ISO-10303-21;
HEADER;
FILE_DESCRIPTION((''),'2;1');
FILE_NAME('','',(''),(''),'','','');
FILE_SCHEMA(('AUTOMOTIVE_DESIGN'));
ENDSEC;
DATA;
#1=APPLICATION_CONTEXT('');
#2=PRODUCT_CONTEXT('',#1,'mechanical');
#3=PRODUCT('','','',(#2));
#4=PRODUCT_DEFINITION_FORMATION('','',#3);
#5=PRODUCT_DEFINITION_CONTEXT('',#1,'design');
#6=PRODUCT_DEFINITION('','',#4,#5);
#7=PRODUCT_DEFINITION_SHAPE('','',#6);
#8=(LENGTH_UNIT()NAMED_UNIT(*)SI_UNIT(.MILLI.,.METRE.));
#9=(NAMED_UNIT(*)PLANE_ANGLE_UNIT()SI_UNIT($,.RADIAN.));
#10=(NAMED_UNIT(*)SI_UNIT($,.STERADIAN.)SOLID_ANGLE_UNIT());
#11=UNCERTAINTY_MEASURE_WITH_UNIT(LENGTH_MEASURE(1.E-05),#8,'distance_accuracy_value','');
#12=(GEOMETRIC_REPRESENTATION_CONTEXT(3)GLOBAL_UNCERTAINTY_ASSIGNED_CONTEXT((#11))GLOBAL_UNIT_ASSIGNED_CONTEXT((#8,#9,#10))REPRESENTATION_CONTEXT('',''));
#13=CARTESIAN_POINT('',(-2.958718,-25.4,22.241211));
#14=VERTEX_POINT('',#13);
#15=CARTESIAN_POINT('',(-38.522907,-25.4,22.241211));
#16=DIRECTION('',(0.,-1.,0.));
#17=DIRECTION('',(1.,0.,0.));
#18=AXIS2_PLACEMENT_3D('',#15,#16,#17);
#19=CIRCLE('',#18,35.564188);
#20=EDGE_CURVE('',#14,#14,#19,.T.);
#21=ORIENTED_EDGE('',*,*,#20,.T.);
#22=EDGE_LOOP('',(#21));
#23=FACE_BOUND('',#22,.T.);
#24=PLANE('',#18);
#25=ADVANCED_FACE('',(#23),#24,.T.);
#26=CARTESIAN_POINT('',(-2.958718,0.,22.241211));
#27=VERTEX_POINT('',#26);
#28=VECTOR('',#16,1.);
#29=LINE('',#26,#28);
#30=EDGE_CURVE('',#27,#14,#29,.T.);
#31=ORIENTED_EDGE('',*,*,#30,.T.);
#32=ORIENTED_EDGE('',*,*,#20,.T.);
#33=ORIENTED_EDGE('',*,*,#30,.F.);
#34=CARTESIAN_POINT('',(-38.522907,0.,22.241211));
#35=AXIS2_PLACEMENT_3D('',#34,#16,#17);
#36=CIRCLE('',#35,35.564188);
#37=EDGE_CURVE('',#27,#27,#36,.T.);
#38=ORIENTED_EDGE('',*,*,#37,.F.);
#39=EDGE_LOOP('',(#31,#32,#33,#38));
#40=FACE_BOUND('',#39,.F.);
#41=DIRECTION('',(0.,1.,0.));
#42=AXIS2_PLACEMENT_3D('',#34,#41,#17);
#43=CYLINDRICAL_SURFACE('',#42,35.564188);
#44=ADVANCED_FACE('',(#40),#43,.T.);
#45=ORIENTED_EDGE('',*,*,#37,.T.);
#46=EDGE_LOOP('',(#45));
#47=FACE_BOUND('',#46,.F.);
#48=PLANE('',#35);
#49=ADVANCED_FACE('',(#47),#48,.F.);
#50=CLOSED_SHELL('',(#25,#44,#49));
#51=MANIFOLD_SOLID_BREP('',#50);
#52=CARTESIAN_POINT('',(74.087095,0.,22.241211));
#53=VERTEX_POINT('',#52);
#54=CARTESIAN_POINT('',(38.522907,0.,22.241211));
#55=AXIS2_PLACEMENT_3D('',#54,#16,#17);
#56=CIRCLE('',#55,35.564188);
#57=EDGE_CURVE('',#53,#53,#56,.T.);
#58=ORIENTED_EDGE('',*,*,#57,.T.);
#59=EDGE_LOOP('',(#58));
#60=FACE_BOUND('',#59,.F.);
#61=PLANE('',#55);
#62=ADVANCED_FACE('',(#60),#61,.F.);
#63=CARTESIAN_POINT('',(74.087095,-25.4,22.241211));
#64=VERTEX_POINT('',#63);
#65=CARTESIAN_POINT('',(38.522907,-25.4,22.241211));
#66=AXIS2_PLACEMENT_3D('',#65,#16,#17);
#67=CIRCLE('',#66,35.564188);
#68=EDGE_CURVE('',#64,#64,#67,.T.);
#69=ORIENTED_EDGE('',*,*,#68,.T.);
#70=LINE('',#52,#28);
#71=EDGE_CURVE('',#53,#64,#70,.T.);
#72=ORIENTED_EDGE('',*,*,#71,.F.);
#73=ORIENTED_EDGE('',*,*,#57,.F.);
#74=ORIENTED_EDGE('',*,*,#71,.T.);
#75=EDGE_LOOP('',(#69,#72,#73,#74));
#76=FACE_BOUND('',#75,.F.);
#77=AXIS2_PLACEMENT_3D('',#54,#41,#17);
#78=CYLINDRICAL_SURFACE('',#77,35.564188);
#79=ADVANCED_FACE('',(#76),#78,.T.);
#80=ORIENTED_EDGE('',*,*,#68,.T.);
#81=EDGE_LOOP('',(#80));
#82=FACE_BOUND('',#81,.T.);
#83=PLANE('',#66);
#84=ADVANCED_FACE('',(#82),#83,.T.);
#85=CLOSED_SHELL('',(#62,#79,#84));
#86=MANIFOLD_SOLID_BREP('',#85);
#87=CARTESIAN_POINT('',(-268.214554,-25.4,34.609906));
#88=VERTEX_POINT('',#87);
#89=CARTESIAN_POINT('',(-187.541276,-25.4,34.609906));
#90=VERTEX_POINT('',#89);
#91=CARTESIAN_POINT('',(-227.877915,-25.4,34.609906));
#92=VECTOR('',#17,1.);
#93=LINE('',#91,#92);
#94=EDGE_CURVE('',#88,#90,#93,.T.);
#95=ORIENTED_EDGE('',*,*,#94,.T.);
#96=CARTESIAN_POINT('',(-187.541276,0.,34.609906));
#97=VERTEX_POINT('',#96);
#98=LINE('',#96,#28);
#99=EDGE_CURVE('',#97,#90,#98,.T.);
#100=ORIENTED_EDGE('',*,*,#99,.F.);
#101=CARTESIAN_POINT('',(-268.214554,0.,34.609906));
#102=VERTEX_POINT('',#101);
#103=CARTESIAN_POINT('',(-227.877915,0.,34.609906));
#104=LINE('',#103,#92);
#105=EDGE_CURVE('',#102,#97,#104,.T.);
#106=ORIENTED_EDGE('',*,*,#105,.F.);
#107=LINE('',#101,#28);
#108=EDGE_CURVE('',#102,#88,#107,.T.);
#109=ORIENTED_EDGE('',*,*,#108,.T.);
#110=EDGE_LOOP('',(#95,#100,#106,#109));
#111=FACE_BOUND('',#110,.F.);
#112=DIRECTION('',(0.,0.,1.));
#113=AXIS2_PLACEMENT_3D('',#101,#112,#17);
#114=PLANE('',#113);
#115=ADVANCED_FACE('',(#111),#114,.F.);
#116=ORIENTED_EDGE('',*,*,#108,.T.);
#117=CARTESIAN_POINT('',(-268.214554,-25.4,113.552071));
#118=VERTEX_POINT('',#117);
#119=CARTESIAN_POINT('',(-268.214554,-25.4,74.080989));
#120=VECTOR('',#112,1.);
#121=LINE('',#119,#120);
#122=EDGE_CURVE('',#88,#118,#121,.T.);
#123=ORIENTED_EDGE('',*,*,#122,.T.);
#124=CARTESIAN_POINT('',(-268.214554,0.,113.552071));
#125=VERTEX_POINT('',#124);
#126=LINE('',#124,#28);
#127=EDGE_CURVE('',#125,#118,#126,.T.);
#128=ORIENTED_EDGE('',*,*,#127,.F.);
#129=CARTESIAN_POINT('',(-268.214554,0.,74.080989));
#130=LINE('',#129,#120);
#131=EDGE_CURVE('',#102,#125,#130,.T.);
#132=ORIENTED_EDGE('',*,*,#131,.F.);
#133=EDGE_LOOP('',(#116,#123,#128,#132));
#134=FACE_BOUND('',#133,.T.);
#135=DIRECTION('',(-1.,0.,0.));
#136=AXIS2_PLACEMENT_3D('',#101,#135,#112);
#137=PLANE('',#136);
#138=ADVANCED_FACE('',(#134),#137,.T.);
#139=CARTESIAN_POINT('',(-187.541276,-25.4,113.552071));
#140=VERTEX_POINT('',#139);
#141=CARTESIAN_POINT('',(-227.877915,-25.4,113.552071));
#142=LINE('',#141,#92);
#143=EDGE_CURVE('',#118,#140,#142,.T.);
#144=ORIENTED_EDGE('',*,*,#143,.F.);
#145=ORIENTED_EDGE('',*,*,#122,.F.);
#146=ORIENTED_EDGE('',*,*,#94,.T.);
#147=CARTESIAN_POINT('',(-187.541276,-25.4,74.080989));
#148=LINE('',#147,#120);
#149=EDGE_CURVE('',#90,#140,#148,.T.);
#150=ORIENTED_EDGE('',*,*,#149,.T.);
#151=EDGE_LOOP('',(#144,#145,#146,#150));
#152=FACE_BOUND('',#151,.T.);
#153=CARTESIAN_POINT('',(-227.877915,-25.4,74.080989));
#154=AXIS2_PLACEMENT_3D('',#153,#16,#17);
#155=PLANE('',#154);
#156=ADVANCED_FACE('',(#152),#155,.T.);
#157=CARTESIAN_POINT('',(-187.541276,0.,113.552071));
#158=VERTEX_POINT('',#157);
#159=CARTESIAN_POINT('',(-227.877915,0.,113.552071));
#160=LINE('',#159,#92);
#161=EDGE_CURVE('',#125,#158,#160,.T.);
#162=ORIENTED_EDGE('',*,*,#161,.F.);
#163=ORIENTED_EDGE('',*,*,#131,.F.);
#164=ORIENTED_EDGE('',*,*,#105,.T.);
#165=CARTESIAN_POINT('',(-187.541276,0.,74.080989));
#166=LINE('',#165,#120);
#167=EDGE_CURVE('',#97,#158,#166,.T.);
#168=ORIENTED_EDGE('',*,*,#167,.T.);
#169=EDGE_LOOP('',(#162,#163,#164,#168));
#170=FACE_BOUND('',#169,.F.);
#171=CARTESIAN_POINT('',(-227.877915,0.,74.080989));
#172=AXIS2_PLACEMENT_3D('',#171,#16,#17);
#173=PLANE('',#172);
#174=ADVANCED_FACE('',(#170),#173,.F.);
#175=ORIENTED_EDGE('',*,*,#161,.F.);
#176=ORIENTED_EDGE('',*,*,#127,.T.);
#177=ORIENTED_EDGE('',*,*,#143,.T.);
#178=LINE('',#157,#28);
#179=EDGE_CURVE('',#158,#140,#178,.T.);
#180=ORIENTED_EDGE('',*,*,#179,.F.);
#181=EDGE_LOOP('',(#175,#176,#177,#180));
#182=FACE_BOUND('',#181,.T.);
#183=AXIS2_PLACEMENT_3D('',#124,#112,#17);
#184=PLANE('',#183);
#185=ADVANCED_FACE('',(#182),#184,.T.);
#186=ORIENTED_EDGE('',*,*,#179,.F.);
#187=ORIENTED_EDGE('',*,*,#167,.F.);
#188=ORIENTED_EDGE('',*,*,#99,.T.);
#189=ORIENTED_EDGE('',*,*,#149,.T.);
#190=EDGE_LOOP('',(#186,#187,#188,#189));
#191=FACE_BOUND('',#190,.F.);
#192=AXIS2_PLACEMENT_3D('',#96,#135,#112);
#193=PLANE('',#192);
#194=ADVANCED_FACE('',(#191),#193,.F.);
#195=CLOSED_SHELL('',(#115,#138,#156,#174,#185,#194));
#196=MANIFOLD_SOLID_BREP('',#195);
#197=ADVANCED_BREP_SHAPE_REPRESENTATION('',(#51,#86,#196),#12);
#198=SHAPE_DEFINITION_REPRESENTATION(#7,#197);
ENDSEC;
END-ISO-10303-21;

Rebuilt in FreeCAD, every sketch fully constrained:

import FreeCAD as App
import Part
import Sketcher
from FreeCAD import Vector
Q = App.Units.Quantity


def add_polygon(sketch, points):
    """Adds a closed chain of lines whose ends are joined by coincident constraints."""
    first, n = sketch.GeometryCount, len(points)
    for a, b in zip(points, points[1:] + points[:1]):
        sketch.addGeometry(Part.LineSegment(App.Vector(*a, 0), App.Vector(*b, 0)), False)
    for i in range(n):
        sketch.addConstraint(Sketcher.Constraint("Coincident", first + i, 2, first + (i + 1) % n, 1))

doc = App.newDocument("Part")
body = doc.addObject("PartDesign::Body", "Body")

sketch1 = doc.addObject("Sketcher::SketchObject", "Sketch")
body.addObject(sketch1)
sketch1.AttachmentSupport = (doc.XZ_Plane, [""])
sketch1.MapMode = "FlatFace"
sketch1.addGeometry(Part.Circle(Vector(-39, 22, 0), Vector(0, 0, 1), 36), False)
sketch1.addConstraint([
    Sketcher.Constraint("Diameter", 0, Q("71.128377 mm")),
    Sketcher.Constraint("DistanceY", -1, 1, 0, 3, Q("22.241211 mm")),
    Sketcher.Constraint("DistanceX", 0, 3, -1, 1, Q("38.522907 mm")),
])
pad1 = doc.addObject("PartDesign::Pad", "Pad")
body.addObject(pad1)
pad1.Profile = sketch1
pad1.Length = Q("1 in")
body2 = doc.addObject("PartDesign::Body", "Body001")

sketch2 = doc.addObject("Sketcher::SketchObject", "Sketch001")
body2.addObject(sketch2)
sketch2.AttachmentSupport = (doc.getObject("XZ_Plane001"), [""])
sketch2.MapMode = "FlatFace"
sketch2.addGeometry(Part.Circle(Vector(39, 22, 0), Vector(0, 0, 1), 36), False)
sketch2.addConstraint([
    Sketcher.Constraint("Diameter", 0, Q("71.128377 mm")),
    Sketcher.Constraint("DistanceY", -1, 1, 0, 3, Q("22.241211 mm")),
    Sketcher.Constraint("DistanceX", -1, 1, 0, 3, Q("38.522907 mm")),
])
pad2 = doc.addObject("PartDesign::Pad", "Pad001")
body2.addObject(pad2)
pad2.Profile = sketch2
pad2.Length = Q("1 in")
body3 = doc.addObject("PartDesign::Body", "Body002")

sketch3 = doc.addObject("Sketcher::SketchObject", "Sketch002")
body3.addObject(sketch3)
sketch3.AttachmentSupport = (doc.getObject("XZ_Plane002"), [""])
sketch3.MapMode = "FlatFace"
sketch3.addGeometry(Part.Circle(Vector(0, -44, 0), Vector(0, 0, 1), 36), False)
sketch3.addConstraint([
    Sketcher.Constraint("PointOnObject", 0, 3, -2),
    Sketcher.Constraint("Diameter", 0, Q("71.128377 mm")),
    Sketcher.Constraint("DistanceY", 0, 3, -1, 1, Q("44.482421 mm")),
])
pad3 = doc.addObject("PartDesign::Pad", "Pad002")
body3.addObject(pad3)
pad3.Profile = sketch3
pad3.Length = Q("1 in")
body4 = doc.addObject("PartDesign::Body", "Body003")

sketch4 = doc.addObject("Sketcher::SketchObject", "Sketch003")
body4.addObject(sketch4)
sketch4.AttachmentSupport = (doc.getObject("XZ_Plane003"), [""])
sketch4.MapMode = "FlatFace"
add_polygon(sketch4, [(-268, 114), (-268, 35), (-188, 35), (-188, 114)])
sketch4.addConstraint([
    Sketcher.Constraint("Vertical", 0),
    Sketcher.Constraint("Horizontal", 1),
    Sketcher.Constraint("Vertical", 2),
    Sketcher.Constraint("Horizontal", 3),
    Sketcher.Constraint("DistanceX", 1, 1, 1, 2, Q("80.673277 mm")),
    Sketcher.Constraint("DistanceY", 0, 2, 0, 1, Q("78.942165 mm")),
    Sketcher.Constraint("DistanceY", -1, 1, 2, 2, Q("113.552071 mm")),
    Sketcher.Constraint("DistanceX", 0, 2, -1, 1, Q("268.214554 mm")),
])
pad4 = doc.addObject("PartDesign::Pad", "Pad003")
body4.addObject(pad4)
pad4.Profile = sketch4
pad4.Length = Q("1 in")
body3.Visibility = False

doc.recompute()
